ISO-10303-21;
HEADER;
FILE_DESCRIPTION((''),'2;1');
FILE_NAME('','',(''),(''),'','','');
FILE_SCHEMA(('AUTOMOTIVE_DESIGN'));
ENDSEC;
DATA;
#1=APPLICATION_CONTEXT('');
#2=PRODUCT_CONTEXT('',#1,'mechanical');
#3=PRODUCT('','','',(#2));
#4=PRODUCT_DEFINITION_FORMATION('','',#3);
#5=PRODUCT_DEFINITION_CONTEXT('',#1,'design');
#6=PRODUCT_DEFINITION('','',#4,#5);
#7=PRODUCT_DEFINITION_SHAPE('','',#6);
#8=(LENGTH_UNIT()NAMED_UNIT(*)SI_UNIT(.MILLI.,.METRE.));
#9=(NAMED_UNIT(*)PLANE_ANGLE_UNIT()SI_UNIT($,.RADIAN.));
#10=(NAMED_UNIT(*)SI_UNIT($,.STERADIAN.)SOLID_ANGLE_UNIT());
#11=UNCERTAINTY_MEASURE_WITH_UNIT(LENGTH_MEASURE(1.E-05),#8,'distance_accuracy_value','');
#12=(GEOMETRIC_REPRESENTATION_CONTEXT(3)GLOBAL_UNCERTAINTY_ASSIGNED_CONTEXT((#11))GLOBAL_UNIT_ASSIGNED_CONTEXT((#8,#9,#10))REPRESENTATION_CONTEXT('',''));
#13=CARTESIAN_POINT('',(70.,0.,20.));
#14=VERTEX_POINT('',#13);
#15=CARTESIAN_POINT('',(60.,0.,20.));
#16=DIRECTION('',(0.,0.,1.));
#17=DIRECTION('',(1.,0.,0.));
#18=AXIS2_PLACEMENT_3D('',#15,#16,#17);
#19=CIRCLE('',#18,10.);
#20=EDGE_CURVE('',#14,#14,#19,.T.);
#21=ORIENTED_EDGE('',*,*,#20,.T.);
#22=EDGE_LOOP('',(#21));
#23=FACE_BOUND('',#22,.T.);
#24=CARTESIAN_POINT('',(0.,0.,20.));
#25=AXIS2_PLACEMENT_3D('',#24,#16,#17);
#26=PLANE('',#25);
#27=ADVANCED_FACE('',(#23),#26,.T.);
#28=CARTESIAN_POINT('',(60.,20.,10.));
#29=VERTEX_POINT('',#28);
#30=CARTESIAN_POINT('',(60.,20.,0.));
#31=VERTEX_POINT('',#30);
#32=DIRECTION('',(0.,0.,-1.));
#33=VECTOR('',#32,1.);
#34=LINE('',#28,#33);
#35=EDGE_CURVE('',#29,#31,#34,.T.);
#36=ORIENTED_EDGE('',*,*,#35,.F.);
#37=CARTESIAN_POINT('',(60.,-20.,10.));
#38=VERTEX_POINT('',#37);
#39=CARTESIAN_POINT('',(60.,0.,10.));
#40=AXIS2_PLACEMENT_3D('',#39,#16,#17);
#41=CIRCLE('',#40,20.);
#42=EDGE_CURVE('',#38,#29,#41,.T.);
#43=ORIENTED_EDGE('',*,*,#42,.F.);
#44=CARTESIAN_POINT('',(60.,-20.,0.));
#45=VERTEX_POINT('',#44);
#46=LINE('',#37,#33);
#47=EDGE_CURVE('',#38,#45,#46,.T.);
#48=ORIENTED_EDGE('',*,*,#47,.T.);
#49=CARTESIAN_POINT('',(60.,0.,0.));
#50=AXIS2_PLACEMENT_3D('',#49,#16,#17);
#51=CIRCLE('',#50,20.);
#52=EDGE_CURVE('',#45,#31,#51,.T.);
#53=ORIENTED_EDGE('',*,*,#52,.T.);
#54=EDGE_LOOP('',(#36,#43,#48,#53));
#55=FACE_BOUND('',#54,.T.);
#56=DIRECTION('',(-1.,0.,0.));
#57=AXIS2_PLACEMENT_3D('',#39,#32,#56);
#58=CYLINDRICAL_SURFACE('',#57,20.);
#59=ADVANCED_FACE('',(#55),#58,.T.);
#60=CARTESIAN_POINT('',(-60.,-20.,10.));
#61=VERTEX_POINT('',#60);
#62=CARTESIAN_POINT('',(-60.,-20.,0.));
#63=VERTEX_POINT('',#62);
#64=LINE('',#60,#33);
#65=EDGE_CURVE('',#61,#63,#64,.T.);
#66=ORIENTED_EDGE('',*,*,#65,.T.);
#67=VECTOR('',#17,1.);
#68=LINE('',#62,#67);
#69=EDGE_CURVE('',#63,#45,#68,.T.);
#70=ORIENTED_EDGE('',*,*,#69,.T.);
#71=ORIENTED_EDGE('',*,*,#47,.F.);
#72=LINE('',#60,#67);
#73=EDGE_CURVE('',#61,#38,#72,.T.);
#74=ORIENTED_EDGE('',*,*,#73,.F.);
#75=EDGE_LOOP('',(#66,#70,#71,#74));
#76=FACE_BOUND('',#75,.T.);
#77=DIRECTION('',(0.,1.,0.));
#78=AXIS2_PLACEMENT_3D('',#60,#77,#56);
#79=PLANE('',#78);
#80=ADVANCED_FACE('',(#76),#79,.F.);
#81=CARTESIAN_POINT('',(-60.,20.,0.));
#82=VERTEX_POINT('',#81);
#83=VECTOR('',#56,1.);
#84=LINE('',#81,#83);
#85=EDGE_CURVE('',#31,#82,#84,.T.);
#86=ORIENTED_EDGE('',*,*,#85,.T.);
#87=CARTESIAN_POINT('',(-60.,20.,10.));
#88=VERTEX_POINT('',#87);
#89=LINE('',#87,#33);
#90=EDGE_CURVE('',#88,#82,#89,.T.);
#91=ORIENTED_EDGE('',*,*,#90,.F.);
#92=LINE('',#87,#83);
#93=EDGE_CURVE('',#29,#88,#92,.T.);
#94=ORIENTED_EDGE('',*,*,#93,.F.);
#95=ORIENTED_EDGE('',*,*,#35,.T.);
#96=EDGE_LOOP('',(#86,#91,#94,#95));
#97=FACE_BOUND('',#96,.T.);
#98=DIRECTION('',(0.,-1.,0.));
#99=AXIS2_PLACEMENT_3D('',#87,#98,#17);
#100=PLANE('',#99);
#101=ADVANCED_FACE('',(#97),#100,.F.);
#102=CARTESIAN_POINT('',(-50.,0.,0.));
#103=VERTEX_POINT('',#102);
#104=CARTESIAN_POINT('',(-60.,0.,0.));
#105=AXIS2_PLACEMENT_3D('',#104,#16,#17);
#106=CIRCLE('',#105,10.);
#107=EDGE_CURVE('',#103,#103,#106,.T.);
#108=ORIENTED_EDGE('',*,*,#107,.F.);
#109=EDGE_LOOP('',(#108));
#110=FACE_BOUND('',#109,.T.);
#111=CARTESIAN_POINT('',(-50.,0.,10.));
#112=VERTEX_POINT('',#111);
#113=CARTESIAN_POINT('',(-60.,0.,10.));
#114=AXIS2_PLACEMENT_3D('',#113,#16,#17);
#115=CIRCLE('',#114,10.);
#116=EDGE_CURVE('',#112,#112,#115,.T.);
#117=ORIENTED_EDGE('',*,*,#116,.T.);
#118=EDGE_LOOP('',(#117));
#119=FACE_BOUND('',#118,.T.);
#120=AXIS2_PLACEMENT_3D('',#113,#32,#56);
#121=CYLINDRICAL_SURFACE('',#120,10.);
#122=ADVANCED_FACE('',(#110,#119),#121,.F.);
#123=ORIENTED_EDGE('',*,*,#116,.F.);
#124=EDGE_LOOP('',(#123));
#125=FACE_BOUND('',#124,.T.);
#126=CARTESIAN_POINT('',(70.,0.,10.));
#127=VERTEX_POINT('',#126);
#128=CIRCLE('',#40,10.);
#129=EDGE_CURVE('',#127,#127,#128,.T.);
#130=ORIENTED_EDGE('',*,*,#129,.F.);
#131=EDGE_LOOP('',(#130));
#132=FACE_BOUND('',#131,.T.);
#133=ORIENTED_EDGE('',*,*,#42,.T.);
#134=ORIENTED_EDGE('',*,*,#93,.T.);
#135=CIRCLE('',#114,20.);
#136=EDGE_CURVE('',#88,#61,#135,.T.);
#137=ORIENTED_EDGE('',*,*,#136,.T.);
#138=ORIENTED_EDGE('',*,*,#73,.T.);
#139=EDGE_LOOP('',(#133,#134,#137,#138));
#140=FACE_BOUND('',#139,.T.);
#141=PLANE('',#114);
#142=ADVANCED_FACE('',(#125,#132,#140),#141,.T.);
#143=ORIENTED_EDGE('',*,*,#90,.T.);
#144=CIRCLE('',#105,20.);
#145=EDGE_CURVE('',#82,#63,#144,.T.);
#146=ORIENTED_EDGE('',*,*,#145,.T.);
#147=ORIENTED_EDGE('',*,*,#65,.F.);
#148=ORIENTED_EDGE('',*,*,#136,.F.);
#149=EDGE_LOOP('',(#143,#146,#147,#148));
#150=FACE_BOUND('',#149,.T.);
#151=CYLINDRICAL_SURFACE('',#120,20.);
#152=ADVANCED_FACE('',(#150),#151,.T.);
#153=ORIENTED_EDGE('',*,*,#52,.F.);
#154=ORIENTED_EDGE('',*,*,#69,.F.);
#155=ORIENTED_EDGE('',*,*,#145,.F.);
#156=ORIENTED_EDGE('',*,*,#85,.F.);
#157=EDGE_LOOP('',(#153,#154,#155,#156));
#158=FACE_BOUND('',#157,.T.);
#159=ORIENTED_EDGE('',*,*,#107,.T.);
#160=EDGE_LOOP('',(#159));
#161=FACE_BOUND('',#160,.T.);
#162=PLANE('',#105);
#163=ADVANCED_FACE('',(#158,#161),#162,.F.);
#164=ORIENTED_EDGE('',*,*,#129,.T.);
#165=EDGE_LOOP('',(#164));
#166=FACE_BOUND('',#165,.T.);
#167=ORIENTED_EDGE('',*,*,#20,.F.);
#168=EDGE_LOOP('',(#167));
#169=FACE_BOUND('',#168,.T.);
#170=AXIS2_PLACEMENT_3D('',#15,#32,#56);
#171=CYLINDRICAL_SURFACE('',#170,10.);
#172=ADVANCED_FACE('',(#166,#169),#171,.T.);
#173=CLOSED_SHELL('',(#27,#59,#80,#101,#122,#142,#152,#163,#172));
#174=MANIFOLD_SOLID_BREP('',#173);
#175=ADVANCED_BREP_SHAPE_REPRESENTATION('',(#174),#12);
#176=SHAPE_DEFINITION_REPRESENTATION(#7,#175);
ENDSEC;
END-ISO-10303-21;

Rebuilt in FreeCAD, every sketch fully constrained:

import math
import FreeCAD as App
import Part
import Sketcher

doc = App.newDocument("Part")
params = doc.addObject("Spreadsheet::Sheet", "Params")
for row, (alias, value) in enumerate([
    ("sketch1_diameter", "20 mm"),
    ("sketch1_radius", "20 mm"),
    ("sketch1_width", "120 mm"),
    ("pad1_length", "10 mm"),
    ("sketch2_diameter", "20 mm"),
    ("pad2_length", "20 mm"),
], start=1):
    params.set(f"A{row}", alias)
    params.set(f"B{row}", "=" + value)
    params.setAlias(f"B{row}", alias)

body = doc.addObject("PartDesign::Body", "Body")

sketch1 = doc.addObject("Sketcher::SketchObject", "Sketch")
body.addObject(sketch1)
sketch1.AttachmentSupport = (doc.XY_Plane, [""])
sketch1.MapMode = "FlatFace"
sketch1.addGeometry(Part.LineSegment(App.Vector(60, 20, 0), App.Vector(-60, 20, 0)), False)
sketch1.addGeometry(Part.ArcOfCircle(Part.Circle(App.Vector(-60, 0, 0), App.Vector(0, 0, 1), 20), math.radians(90), math.radians(270)), False)
sketch1.addGeometry(Part.LineSegment(App.Vector(-60, -20, 0), App.Vector(60, -20, 0)), False)
sketch1.addGeometry(Part.ArcOfCircle(Part.Circle(App.Vector(60, 0, 0), App.Vector(0, 0, 1), 20), math.radians(-90), math.radians(90)), False)
sketch1.addGeometry(Part.Circle(App.Vector(60, 0, 0), App.Vector(0, 0, 1), 10), False)
sketch1.addGeometry(Part.Circle(App.Vector(-60, 0, 0), App.Vector(0, 0, 1), 10), False)
sketch1.addConstraint(Sketcher.Constraint("Tangent", 0, 2, 1, 1))
sketch1.addConstraint(Sketcher.Constraint("Tangent", 1, 2, 2, 1))
sketch1.addConstraint(Sketcher.Constraint("Tangent", 2, 2, 3, 1))
sketch1.addConstraint(Sketcher.Constraint("Tangent", 3, 2, 0, 1))
sketch1.addConstraint(Sketcher.Constraint("Horizontal", 0))
sketch1.addConstraint(Sketcher.Constraint("Horizontal", 2))
sketch1.addConstraint(Sketcher.Constraint("Coincident", 4, 3, 3, 3))
sketch1.addConstraint(Sketcher.Constraint("Coincident", 5, 3, 1, 3))
sketch1.addConstraint(Sketcher.Constraint("Equal", 4, 5))
sketch1.addConstraint(Sketcher.Constraint("Symmetric", 1, 3, 3, 3, -1, 1))
sketch1.addConstraint(Sketcher.Constraint("Diameter", 4, 20.0))
sketch1.addConstraint(Sketcher.Constraint("Radius", 1, 20.0))
sketch1.addConstraint(Sketcher.Constraint("DistanceX", 0, 2, 0, 1, 120.0))
sketch1.setExpression("Constraints[10]", "Params.sketch1_diameter")
sketch1.setExpression("Constraints[11]", "Params.sketch1_radius")
sketch1.setExpression("Constraints[12]", "Params.sketch1_width")
pad1 = doc.addObject("PartDesign::Pad", "Pad")
body.addObject(pad1)
pad1.Profile = sketch1
pad1.setExpression("Length", "Params.pad1_length")

sketch2 = doc.addObject("Sketcher::SketchObject", "Sketch001")
body.addObject(sketch2)
sketch2.AttachmentSupport = (doc.XY_Plane, [""])
sketch2.MapMode = "FlatFace"
sketch2.addGeometry(Part.Circle(App.Vector(60, 0, 0), App.Vector(0, 0, 1), 10), False)
sketch2.addConstraint(Sketcher.Constraint("PointOnObject", 0, 3, -1))
sketch2.addConstraint(Sketcher.Constraint("Diameter", 0, 20.0))
sketch2.addConstraint(Sketcher.Constraint("DistanceX", -1, 1, 0, 3, 60.0))
sketch2.setExpression("Constraints[1]", "Params.sketch2_diameter")
pad2 = doc.addObject("PartDesign::Pad", "Pad001")
body.addObject(pad2)
pad2.Profile = sketch2
pad2.setExpression("Length", "Params.pad2_length")

doc.recompute()
